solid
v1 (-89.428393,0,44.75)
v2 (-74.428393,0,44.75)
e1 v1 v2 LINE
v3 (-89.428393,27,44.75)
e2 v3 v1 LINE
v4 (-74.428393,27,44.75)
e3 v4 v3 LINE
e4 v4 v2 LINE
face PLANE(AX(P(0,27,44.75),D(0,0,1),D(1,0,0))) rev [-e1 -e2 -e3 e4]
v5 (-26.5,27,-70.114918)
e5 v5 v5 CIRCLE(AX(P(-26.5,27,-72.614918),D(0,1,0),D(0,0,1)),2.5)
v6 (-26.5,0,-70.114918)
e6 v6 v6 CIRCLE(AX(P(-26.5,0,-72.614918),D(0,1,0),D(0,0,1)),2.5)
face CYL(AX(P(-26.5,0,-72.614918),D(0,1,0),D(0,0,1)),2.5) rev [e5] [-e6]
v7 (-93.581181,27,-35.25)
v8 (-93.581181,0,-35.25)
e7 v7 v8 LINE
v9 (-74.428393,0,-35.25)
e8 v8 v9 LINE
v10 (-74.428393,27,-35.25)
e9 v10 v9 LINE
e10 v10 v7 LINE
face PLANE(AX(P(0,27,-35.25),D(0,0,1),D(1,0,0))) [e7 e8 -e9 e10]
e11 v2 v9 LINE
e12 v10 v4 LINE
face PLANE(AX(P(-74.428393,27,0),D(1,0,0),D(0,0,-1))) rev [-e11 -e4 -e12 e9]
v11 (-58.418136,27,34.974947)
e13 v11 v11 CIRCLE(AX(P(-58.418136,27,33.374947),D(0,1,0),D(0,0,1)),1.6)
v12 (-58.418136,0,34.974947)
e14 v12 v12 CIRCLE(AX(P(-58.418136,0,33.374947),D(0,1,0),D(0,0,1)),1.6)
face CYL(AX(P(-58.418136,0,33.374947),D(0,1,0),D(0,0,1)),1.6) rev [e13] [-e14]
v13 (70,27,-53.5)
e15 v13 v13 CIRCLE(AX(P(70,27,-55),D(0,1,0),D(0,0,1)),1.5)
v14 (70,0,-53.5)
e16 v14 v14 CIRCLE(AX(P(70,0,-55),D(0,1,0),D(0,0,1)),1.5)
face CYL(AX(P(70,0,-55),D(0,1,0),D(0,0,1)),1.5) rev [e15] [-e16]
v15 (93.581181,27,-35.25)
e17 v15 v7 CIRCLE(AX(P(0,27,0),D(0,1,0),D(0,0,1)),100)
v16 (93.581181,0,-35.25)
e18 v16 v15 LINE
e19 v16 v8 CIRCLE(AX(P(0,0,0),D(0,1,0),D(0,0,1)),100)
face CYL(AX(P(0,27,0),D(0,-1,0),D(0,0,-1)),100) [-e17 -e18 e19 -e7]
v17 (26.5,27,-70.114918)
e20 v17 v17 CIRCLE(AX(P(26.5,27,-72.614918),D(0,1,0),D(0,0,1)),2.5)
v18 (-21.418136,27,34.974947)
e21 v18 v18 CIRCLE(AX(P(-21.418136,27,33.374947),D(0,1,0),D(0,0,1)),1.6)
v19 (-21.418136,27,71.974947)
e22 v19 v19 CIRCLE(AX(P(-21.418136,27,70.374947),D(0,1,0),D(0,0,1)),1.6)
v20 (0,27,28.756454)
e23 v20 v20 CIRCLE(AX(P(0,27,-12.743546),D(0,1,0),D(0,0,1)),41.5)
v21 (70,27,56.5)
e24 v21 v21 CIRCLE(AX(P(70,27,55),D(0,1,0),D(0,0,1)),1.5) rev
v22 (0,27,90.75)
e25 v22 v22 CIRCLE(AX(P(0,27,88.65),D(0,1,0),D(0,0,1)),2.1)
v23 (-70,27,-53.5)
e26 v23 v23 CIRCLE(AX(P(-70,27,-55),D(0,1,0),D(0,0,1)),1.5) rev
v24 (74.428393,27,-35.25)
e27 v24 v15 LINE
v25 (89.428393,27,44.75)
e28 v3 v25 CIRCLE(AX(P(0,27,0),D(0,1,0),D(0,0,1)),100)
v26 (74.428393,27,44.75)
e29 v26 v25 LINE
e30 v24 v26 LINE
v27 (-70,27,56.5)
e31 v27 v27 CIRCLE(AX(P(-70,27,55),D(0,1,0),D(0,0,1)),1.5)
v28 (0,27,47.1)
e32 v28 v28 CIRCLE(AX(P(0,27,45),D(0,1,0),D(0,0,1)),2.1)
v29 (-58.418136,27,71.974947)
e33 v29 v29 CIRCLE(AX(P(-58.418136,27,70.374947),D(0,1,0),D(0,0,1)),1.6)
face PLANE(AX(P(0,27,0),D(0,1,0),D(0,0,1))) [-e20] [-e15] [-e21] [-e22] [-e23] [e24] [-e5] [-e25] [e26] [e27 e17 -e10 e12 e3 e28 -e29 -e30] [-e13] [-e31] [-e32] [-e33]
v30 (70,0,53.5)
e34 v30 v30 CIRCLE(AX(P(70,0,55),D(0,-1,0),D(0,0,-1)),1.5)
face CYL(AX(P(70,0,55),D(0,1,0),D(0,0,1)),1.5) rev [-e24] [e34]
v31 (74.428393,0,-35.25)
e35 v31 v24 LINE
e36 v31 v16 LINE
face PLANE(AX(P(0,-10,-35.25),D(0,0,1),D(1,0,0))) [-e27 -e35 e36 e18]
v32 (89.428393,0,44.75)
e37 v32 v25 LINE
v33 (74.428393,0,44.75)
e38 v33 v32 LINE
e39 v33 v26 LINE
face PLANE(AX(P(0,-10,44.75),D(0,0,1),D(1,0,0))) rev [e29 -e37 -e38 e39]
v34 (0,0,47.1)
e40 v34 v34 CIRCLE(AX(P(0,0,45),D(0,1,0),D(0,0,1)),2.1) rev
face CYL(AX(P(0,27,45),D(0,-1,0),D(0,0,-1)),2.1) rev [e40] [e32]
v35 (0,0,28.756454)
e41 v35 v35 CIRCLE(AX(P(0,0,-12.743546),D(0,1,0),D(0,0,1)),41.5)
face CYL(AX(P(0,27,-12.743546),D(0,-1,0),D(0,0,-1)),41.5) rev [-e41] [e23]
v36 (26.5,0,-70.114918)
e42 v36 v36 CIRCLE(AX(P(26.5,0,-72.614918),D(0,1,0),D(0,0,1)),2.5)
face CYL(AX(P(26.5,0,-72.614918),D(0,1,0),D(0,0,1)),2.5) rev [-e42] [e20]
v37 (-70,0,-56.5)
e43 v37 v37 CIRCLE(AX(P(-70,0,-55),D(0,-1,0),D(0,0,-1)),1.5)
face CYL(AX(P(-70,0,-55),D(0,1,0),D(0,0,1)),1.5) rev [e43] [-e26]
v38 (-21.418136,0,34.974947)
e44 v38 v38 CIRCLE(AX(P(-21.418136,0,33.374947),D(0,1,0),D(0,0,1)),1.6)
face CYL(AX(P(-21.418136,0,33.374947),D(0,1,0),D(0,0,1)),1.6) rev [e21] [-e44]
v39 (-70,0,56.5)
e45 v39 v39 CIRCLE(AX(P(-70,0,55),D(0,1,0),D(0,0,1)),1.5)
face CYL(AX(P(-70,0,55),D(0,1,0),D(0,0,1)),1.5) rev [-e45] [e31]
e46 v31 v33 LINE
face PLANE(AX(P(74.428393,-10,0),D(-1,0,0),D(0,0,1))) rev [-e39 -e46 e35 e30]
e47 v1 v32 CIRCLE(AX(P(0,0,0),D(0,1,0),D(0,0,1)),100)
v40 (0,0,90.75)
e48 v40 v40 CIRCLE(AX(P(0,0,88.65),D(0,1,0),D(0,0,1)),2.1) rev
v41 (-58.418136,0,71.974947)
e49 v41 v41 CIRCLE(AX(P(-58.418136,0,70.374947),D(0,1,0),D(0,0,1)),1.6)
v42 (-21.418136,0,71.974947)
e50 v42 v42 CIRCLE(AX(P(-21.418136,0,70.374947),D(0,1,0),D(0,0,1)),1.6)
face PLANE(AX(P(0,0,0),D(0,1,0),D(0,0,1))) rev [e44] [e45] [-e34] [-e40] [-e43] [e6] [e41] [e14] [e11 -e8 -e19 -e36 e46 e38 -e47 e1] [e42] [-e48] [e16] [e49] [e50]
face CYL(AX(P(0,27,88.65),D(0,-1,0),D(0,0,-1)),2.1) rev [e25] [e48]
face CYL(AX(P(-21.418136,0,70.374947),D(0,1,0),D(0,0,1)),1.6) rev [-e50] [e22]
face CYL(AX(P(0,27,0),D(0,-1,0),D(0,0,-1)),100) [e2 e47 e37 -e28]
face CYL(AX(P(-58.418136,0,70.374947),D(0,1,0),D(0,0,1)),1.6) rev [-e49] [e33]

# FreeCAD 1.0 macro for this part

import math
import FreeCAD as App
import Part
import Sketcher

V = App.Vector

doc = App.newDocument("Part")
params = doc.addObject("Spreadsheet::Sheet", "Params")
for row, (alias, value) in enumerate([
    ("sketch1_diameter", "200 mm"),
    ("pad1_length", "27 mm"),
    ("sketch2_radius", "100 mm"),
    ("sketch2_width", "15 mm"),
    ("sketch2_height", "80 mm"),
    ("sketch3_diameter", "83 mm"),
    ("sketch4_diameter", "4.2 mm"),
    ("sketch5_diameter", "3 mm"),
    ("sketch5_diameter2", "3.2 mm"),
    ("sketch6_diameter", "5 mm"),
], start=1):
    params.set(f"A{row}", alias)
    params.set(f"B{row}", "=" + value)
    params.setAlias(f"B{row}", alias)

body = doc.addObject("PartDesign::Body", "Body")

# Sketch on XZ plane
sketch1 = body.newObject("Sketcher::SketchObject", "Sketch")
sketch1.AttachmentSupport = (doc.getObject("XZ_Plane"), [""])
sketch1.MapMode = "FlatFace"
sketch1.addGeometry(Part.Circle(V(0, 0, 0), V(0, 0, 1), 100), False)
sketch1.addConstraint([
    Sketcher.Constraint("Coincident", 0, 3, -1, 1),
    Sketcher.Constraint("Diameter", 0, 200.0),
])
sketch1.setExpression("Constraints[1]", "Params.sketch1_diameter")
pad1 = body.newObject("PartDesign::Pad", "Pad")
pad1.Profile = sketch1
pad1.setExpression("Length", "Params.pad1_length")
pad1.Reversed = True

# Sketch on XZ plane
sketch2 = body.newObject("Sketcher::SketchObject", "Sketch001")
sketch2.AttachmentSupport = (doc.getObject("XZ_Plane"), [""])
sketch2.MapMode = "FlatFace"
sketch2.addGeometry([
    Part.LineSegment(V(-74, -35, 0), V(-94, -35, 0)),  # 0
    Part.ArcOfCircle(Part.Circle(V(0, 0, 0), V(0, 0, 1), 100), math.radians(153), math.radians(201)),  # 1
    Part.LineSegment(V(-89, 45, 0), V(-74, 45, 0)),  # 2
    Part.LineSegment(V(-74, 45, 0), V(-74, -35, 0)),  # 3
    Part.LineSegment(V(94, -35, 0), V(74, -35, 0)),  # 4
    Part.LineSegment(V(74, -35, 0), V(74, 45, 0)),  # 5
    Part.LineSegment(V(74, 45, 0), V(89, 45, 0)),  # 6
    Part.ArcOfCircle(Part.Circle(V(0, 0, 0), V(0, 0, 1), 100), math.radians(0), math.radians(27)),  # 7
    Part.ArcOfCircle(Part.Circle(V(0, 0, 0), V(0, 0, 1), 100), math.radians(-21), math.radians(0)),  # 8
], False)
sketch2.addConstraint([
    Sketcher.Constraint("Coincident", 0, 2, 1, 2),
    Sketcher.Constraint("Coincident", 1, 1, 2, 1),
    Sketcher.Constraint("Coincident", 2, 2, 3, 1),
    Sketcher.Constraint("Coincident", 3, 2, 0, 1),
    Sketcher.Constraint("Coincident", 4, 2, 5, 1),
    Sketcher.Constraint("Coincident", 5, 2, 6, 1),
    Sketcher.Constraint("Coincident", 6, 2, 7, 2),
    Sketcher.Constraint("Tangent", 7, 1, 8, 2),
    Sketcher.Constraint("Coincident", 8, 1, 4, 1),
    Sketcher.Constraint("Horizontal", 0),
    Sketcher.Constraint("Horizontal", 2),
    Sketcher.Constraint("Vertical", 3),
    Sketcher.Constraint("Horizontal", 4),
    Sketcher.Constraint("Vertical", 5),
    Sketcher.Constraint("Horizontal", 6),
    Sketcher.Constraint("Coincident", 1, 3, -1, 1),
    Sketcher.Constraint("Coincident", 7, 3, -1, 1),
    Sketcher.Constraint("Equal", 1, 7),
    Sketcher.Constraint("Equal", 7, 8),
    Sketcher.Constraint("Symmetric", 3, 2, 4, 2, -2),
    Sketcher.Constraint("PointOnObject", 7, 1, -1),
    Sketcher.Constraint("Horizontal", 2, 2, 5, 2),
    Sketcher.Constraint("Radius", 1, 100.0),
    Sketcher.Constraint("DistanceX", 2, 1, 2, 2, 15.0),
    Sketcher.Constraint("DistanceY", 3, 2, 3, 1, 80.0),
    Sketcher.Constraint("DistanceY", 0, 2, -1, 1, 35.25),
])
sketch2.setExpression("Constraints[22]", "Params.sketch2_radius")
sketch2.setExpression("Constraints[23]", "Params.sketch2_width")
sketch2.setExpression("Constraints[24]", "Params.sketch2_height")
pocket1 = body.newObject("PartDesign::Pocket", "Pocket")
pocket1.Profile = sketch2
pocket1.Type = "ThroughAll"
pocket1.Midplane = True

# Sketch on XZ plane
sketch3 = body.newObject("Sketcher::SketchObject", "Sketch002")
sketch3.AttachmentSupport = (doc.getObject("XZ_Plane"), [""])
sketch3.MapMode = "FlatFace"
sketch3.addGeometry(Part.Circle(V(0, -13, 0), V(0, 0, 1), 42), False)
sketch3.addConstraint([
    Sketcher.Constraint("PointOnObject", 0, 3, -2),
    Sketcher.Constraint("Diameter", 0, 83.0),
    Sketcher.Constraint("DistanceY", 0, 3, -1, 1, 12.743546),
])
sketch3.setExpression("Constraints[1]", "Params.sketch3_diameter")
pocket2 = body.newObject("PartDesign::Pocket", "Pocket001")
pocket2.Profile = sketch3
pocket2.Type = "ThroughAll"

# Sketch on XZ plane
sketch4 = body.newObject("Sketcher::SketchObject", "Sketch003")
sketch4.AttachmentSupport = (doc.getObject("XZ_Plane"), [""])
sketch4.MapMode = "FlatFace"
sketch4.addGeometry([
    Part.Circle(V(0, 45, 0), V(0, 0, 1), 2.1),
    Part.Circle(V(0, 88.7, 0), V(0, 0, 1), 2.1),
], False)
sketch4.addConstraint([
    Sketcher.Constraint("Equal", 0, 1),
    Sketcher.Constraint("PointOnObject", 0, 3, -2),
    Sketcher.Constraint("PointOnObject", 1, 3, -2),
    Sketcher.Constraint("Diameter", 0, 4.2),
    Sketcher.Constraint("DistanceY", -1, 1, 0, 3, 45.0),
    Sketcher.Constraint("DistanceY", -1, 1, 1, 3, 88.65),
])
sketch4.setExpression("Constraints[3]", "Params.sketch4_diameter")
pocket3 = body.newObject("PartDesign::Pocket", "Pocket002")
pocket3.Profile = sketch4
pocket3.Type = "ThroughAll"
pocket3.Midplane = True

# Sketch on XZ plane
sketch5 = body.newObject("Sketcher::SketchObject", "Sketch004")
sketch5.AttachmentSupport = (doc.getObject("XZ_Plane"), [""])
sketch5.MapMode = "FlatFace"
sketch5.AttachmentOffset = App.Placement(V(0, 0, -27), App.Rotation())
sketch5.addGeometry([
    Part.ArcOfCircle(Part.Circle(V(-58.4, 33.4, 0), V(0, 0, 1), 1.6), math.radians(90), math.radians(360)),  # 0
    Part.ArcOfCircle(Part.Circle(V(-58.4, 33.4, 0), V(0, 0, 1), 1.6), math.radians(0), math.radians(90)),  # 1
    Part.ArcOfCircle(Part.Circle(V(-21.4, 33.4, 0), V(0, 0, 1), 1.6), math.radians(180), math.radians(360)),  # 2
    Part.ArcOfCircle(Part.Circle(V(-21.4, 33.4, 0), V(0, 0, 1), 1.6), math.radians(90), math.radians(180)),  # 3
    Part.ArcOfCircle(Part.Circle(V(-21.4, 33.4, 0), V(0, 0, 1), 1.6), math.radians(0), math.radians(90)),  # 4
    Part.ArcOfCircle(Part.Circle(V(-58.4, 70.4, 0), V(0, 0, 1), 1.6), math.radians(-90), math.radians(0)),  # 5
    Part.ArcOfCircle(Part.Circle(V(-58.4, 70.4, 0), V(0, 0, 1), 1.6), math.radians(0), math.radians(270)),  # 6
    Part.Circle(V(-21.4, 70.4, 0), V(0, 0, 1), 1.6),  # 7
    Part.Circle(V(-70, 55, 0), V(0, 0, 1), 1.5),  # 8
    Part.Circle(V(-70, -55, 0), V(0, 0, 1), 1.5),  # 9
    Part.Circle(V(70, -55, 0), V(0, 0, 1), 1.5),  # 10
    Part.Circle(V(70, 55, 0), V(0, 0, 1), 1.5),  # 11
], False)
sketch5.addConstraint([
    Sketcher.Constraint("Tangent", 0, 1, 1, 2),
    Sketcher.Constraint("Coincident", 1, 1, 0, 2),
    Sketcher.Constraint("Tangent", 2, 1, 3, 2),
    Sketcher.Constraint("Tangent", 3, 1, 4, 2),
    Sketcher.Constraint("Tangent", 4, 1, 2, 2),
    Sketcher.Constraint("Tangent", 5, 1, 6, 2),
    Sketcher.Constraint("Coincident", 6, 1, 5, 2),
    Sketcher.Constraint("Equal", 1, 2),
    Sketcher.Constraint("Equal", 4, 5),
    Sketcher.Constraint("Equal", 6, 7),
    Sketcher.Constraint("Equal", 8, 9),
    Sketcher.Constraint("Equal", 9, 10),
    Sketcher.Constraint("Equal", 10, 11),
    Sketcher.Constraint("Symmetric", 8, 3, 10, 3, -1, 1),
    Sketcher.Constraint("Symmetric", 9, 3, 11, 3, -1, 1),
    Sketcher.Constraint("Symmetric", 9, 3, 10, 3, -2),
    Sketcher.Constraint("Horizontal", 1, 3, 2, 3),
    Sketcher.Constraint("Horizontal", 6, 3, 7, 3),
    Sketcher.Constraint("Horizontal", 4, 3, 1, 1),
    Sketcher.Constraint("Horizontal", 1, 1, 2, 1),
    Sketcher.Constraint("Horizontal", 2, 1, 4, 1),
    Sketcher.Constraint("Horizontal", 7, 3, 6, 1),
    Sketcher.Constraint("Vertical", 1, 3, 5, 3),
    Sketcher.Constraint("Vertical", 4, 3, 7, 3),
    Sketcher.Constraint("Vertical", 6, 3, 0, 1),
    Sketcher.Constraint("Vertical", 7, 3, 3, 1),
    Sketcher.Constraint("Vertical", 0, 1, 5, 1),
    Sketcher.Constraint("Diameter", 8, 3.0),
    Sketcher.Constraint("Diameter", 7, 3.2),
    Sketcher.Constraint("DistanceX", 8, 3, -1, 1, 70.0),
    Sketcher.Constraint("DistanceY", -1, 1, 8, 3, 55.0),
    Sketcher.Constraint("DistanceX", 0, 3, 2, 3, 37.0),
    Sketcher.Constraint("DistanceY", 0, 3, 5, 3, 37.0),
    Sketcher.Constraint("DistanceX", 0, 3, -1, 1, 58.418136),
    Sketcher.Constraint("DistanceY", -1, 1, 0, 3, 33.374947),
])
sketch5.setExpression("Constraints[27]", "Params.sketch5_diameter")
sketch5.setExpression("Constraints[28]", "Params.sketch5_diameter2")
pocket4 = body.newObject("PartDesign::Pocket", "Pocket003")
pocket4.Profile = sketch5
pocket4.Type = "ThroughAll"
pocket4.Midplane = True

# Sketch on XZ plane
sketch6 = body.newObject("Sketcher::SketchObject", "Sketch005")
sketch6.AttachmentSupport = (doc.getObject("XZ_Plane"), [""])
sketch6.MapMode = "FlatFace"
sketch6.AttachmentOffset = App.Placement(V(0, 0, -27), App.Rotation())
sketch6.addGeometry([
    Part.Circle(V(-26.5, -72.6, 0), V(0, 0, 1), 2.5),
    Part.Circle(V(26.5, -72.6, 0), V(0, 0, 1), 2.5),
], False)
sketch6.addConstraint([
    Sketcher.Constraint("Equal", 0, 1),
    Sketcher.Constraint("Symmetric", 0, 3, 1, 3, -2),
    Sketcher.Constraint("Diameter", 0, 5.0),
    Sketcher.Constraint("DistanceX", 0, 3, 1, 3, 53.0),
    Sketcher.Constraint("DistanceY", 0, 3, -1, 1, 72.614918),
])
sketch6.setExpression("Constraints[2]", "Params.sketch6_diameter")
pocket5 = body.newObject("PartDesign::Pocket", "Pocket004")
pocket5.Profile = sketch6
pocket5.Type = "ThroughAll"
pocket5.Midplane = True

doc.recompute()
